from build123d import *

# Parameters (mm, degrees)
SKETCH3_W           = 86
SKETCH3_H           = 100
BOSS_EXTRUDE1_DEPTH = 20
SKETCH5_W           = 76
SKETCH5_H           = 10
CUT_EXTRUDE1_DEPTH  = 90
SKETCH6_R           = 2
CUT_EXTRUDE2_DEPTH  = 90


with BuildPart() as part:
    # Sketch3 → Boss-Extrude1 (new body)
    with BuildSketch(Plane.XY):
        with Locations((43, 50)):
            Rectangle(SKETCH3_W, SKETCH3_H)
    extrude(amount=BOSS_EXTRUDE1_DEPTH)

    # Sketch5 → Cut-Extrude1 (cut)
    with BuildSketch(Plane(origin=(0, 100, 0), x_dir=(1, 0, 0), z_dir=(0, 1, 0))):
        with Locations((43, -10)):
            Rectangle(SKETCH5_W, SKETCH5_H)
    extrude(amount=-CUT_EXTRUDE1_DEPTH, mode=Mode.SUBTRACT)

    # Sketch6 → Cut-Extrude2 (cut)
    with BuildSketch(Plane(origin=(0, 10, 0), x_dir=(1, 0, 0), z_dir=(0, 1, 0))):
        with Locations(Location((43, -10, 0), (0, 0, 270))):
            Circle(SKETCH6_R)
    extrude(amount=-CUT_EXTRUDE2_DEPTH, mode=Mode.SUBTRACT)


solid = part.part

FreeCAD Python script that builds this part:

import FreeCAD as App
import Part
import Sketcher

doc = App.newDocument("Part")
body = doc.addObject("PartDesign::Body", "Body")

sketch1 = body.newObject("Sketcher::SketchObject", "Sketch")
sketch1.AttachmentSupport = (doc.getObject("XY_Plane"), [""])
sketch1.MapMode = "FlatFace"
sketch1.addGeometry(Part.LineSegment(App.Vector(0, 100, 0), App.Vector(0, 0, 0)), False)
sketch1.addGeometry(Part.LineSegment(App.Vector(0, 0, 0), App.Vector(86, 0, 0)), False)
sketch1.addGeometry(Part.LineSegment(App.Vector(86, 0, 0), App.Vector(86, 100, 0)), False)
sketch1.addGeometry(Part.LineSegment(App.Vector(86, 100, 0), App.Vector(0, 100, 0)), False)
sketch1.addConstraint(Sketcher.Constraint("Coincident", 0, 2, 1, 1))
sketch1.addConstraint(Sketcher.Constraint("Coincident", 1, 2, 2, 1))
sketch1.addConstraint(Sketcher.Constraint("Coincident", 2, 2, 3, 1))
sketch1.addConstraint(Sketcher.Constraint("Coincident", 3, 2, 0, 1))
sketch1.addConstraint(Sketcher.Constraint("Vertical", 0))
sketch1.addConstraint(Sketcher.Constraint("Horizontal", 1))
sketch1.addConstraint(Sketcher.Constraint("Vertical", 2))
sketch1.addConstraint(Sketcher.Constraint("Horizontal", 3))
sketch1.addConstraint(Sketcher.Constraint("Coincident", 0, 2, -1, 1))
sketch1.addConstraint(Sketcher.Constraint("DistanceX", 1, 1, 1, 2, 86.0))
sketch1.addConstraint(Sketcher.Constraint("DistanceY", 0, 2, 0, 1, 100.0))
pad1 = body.newObject("PartDesign::Pad", "Pad")
pad1.Profile = sketch1
pad1.Length = 20

sketch2 = body.newObject("Sketcher::SketchObject", "Sketch001")
sketch2.AttachmentSupport = (doc.getObject("XZ_Plane"), [""])
sketch2.MapMode = "FlatFace"
sketch2.AttachmentOffset = App.Placement(App.Vector(0, 0, -100), App.Rotation())
sketch2.addGeometry(Part.LineSegment(App.Vector(5, 5, 0), App.Vector(5, 15, 0)), False)
sketch2.addGeometry(Part.LineSegment(App.Vector(5, 15, 0), App.Vector(81, 15, 0)), False)
sketch2.addGeometry(Part.LineSegment(App.Vector(81, 15, 0), App.Vector(81, 5, 0)), False)
sketch2.addGeometry(Part.LineSegment(App.Vector(81, 5, 0), App.Vector(5, 5, 0)), False)
sketch2.addConstraint(Sketcher.Constraint("Coincident", 0, 2, 1, 1))
sketch2.addConstraint(Sketcher.Constraint("Coincident", 1, 2, 2, 1))
sketch2.addConstraint(Sketcher.Constraint("Coincident", 2, 2, 3, 1))
sketch2.addConstraint(Sketcher.Constraint("Coincident", 3, 2, 0, 1))
sketch2.addConstraint(Sketcher.Constraint("Vertical", 0))
sketch2.addConstraint(Sketcher.Constraint("Horizontal", 1))
sketch2.addConstraint(Sketcher.Constraint("Vertical", 2))
sketch2.addConstraint(Sketcher.Constraint("Horizontal", 3))
sketch2.addConstraint(Sketcher.Constraint("DistanceX", 1, 1, 1, 2, 76.0))
sketch2.addConstraint(Sketcher.Constraint("DistanceY", 0, 1, 0, 2, 10.0))
sketch2.addConstraint(Sketcher.Constraint("DistanceX", -1, 1, 0, 2, 5.0))
sketch2.addConstraint(Sketcher.Constraint("DistanceY", -1, 1, 0, 2, 15.0))
pocket1 = body.newObject("PartDesign::Pocket", "Pocket")
pocket1.Profile = sketch2
pocket1.Length = 90
pocket1.Reversed = True

sketch3 = body.newObject("Sketcher::SketchObject", "Sketch002")
sketch3.AttachmentSupport = (doc.getObject("XZ_Plane"), [""])
sketch3.MapMode = "FlatFace"
sketch3.AttachmentOffset = App.Placement(App.Vector(0, 0, -10), App.Rotation())
sketch3.addGeometry(Part.Circle(App.Vector(43, 10, 0), App.Vector(0, 0, 1), 2), False)
sketch3.addConstraint(Sketcher.Constraint("Diameter", 0, 4.0))
sketch3.addConstraint(Sketcher.Constraint("DistanceX", -1, 1, 0, 3, 43.0))
sketch3.addConstraint(Sketcher.Constraint("DistanceY", -1, 1, 0, 3, 10.0))
pocket2 = body.newObject("PartDesign::Pocket", "Pocket001")
pocket2.Profile = sketch3
pocket2.Length = 90
pocket2.Reversed = True

doc.recompute()
